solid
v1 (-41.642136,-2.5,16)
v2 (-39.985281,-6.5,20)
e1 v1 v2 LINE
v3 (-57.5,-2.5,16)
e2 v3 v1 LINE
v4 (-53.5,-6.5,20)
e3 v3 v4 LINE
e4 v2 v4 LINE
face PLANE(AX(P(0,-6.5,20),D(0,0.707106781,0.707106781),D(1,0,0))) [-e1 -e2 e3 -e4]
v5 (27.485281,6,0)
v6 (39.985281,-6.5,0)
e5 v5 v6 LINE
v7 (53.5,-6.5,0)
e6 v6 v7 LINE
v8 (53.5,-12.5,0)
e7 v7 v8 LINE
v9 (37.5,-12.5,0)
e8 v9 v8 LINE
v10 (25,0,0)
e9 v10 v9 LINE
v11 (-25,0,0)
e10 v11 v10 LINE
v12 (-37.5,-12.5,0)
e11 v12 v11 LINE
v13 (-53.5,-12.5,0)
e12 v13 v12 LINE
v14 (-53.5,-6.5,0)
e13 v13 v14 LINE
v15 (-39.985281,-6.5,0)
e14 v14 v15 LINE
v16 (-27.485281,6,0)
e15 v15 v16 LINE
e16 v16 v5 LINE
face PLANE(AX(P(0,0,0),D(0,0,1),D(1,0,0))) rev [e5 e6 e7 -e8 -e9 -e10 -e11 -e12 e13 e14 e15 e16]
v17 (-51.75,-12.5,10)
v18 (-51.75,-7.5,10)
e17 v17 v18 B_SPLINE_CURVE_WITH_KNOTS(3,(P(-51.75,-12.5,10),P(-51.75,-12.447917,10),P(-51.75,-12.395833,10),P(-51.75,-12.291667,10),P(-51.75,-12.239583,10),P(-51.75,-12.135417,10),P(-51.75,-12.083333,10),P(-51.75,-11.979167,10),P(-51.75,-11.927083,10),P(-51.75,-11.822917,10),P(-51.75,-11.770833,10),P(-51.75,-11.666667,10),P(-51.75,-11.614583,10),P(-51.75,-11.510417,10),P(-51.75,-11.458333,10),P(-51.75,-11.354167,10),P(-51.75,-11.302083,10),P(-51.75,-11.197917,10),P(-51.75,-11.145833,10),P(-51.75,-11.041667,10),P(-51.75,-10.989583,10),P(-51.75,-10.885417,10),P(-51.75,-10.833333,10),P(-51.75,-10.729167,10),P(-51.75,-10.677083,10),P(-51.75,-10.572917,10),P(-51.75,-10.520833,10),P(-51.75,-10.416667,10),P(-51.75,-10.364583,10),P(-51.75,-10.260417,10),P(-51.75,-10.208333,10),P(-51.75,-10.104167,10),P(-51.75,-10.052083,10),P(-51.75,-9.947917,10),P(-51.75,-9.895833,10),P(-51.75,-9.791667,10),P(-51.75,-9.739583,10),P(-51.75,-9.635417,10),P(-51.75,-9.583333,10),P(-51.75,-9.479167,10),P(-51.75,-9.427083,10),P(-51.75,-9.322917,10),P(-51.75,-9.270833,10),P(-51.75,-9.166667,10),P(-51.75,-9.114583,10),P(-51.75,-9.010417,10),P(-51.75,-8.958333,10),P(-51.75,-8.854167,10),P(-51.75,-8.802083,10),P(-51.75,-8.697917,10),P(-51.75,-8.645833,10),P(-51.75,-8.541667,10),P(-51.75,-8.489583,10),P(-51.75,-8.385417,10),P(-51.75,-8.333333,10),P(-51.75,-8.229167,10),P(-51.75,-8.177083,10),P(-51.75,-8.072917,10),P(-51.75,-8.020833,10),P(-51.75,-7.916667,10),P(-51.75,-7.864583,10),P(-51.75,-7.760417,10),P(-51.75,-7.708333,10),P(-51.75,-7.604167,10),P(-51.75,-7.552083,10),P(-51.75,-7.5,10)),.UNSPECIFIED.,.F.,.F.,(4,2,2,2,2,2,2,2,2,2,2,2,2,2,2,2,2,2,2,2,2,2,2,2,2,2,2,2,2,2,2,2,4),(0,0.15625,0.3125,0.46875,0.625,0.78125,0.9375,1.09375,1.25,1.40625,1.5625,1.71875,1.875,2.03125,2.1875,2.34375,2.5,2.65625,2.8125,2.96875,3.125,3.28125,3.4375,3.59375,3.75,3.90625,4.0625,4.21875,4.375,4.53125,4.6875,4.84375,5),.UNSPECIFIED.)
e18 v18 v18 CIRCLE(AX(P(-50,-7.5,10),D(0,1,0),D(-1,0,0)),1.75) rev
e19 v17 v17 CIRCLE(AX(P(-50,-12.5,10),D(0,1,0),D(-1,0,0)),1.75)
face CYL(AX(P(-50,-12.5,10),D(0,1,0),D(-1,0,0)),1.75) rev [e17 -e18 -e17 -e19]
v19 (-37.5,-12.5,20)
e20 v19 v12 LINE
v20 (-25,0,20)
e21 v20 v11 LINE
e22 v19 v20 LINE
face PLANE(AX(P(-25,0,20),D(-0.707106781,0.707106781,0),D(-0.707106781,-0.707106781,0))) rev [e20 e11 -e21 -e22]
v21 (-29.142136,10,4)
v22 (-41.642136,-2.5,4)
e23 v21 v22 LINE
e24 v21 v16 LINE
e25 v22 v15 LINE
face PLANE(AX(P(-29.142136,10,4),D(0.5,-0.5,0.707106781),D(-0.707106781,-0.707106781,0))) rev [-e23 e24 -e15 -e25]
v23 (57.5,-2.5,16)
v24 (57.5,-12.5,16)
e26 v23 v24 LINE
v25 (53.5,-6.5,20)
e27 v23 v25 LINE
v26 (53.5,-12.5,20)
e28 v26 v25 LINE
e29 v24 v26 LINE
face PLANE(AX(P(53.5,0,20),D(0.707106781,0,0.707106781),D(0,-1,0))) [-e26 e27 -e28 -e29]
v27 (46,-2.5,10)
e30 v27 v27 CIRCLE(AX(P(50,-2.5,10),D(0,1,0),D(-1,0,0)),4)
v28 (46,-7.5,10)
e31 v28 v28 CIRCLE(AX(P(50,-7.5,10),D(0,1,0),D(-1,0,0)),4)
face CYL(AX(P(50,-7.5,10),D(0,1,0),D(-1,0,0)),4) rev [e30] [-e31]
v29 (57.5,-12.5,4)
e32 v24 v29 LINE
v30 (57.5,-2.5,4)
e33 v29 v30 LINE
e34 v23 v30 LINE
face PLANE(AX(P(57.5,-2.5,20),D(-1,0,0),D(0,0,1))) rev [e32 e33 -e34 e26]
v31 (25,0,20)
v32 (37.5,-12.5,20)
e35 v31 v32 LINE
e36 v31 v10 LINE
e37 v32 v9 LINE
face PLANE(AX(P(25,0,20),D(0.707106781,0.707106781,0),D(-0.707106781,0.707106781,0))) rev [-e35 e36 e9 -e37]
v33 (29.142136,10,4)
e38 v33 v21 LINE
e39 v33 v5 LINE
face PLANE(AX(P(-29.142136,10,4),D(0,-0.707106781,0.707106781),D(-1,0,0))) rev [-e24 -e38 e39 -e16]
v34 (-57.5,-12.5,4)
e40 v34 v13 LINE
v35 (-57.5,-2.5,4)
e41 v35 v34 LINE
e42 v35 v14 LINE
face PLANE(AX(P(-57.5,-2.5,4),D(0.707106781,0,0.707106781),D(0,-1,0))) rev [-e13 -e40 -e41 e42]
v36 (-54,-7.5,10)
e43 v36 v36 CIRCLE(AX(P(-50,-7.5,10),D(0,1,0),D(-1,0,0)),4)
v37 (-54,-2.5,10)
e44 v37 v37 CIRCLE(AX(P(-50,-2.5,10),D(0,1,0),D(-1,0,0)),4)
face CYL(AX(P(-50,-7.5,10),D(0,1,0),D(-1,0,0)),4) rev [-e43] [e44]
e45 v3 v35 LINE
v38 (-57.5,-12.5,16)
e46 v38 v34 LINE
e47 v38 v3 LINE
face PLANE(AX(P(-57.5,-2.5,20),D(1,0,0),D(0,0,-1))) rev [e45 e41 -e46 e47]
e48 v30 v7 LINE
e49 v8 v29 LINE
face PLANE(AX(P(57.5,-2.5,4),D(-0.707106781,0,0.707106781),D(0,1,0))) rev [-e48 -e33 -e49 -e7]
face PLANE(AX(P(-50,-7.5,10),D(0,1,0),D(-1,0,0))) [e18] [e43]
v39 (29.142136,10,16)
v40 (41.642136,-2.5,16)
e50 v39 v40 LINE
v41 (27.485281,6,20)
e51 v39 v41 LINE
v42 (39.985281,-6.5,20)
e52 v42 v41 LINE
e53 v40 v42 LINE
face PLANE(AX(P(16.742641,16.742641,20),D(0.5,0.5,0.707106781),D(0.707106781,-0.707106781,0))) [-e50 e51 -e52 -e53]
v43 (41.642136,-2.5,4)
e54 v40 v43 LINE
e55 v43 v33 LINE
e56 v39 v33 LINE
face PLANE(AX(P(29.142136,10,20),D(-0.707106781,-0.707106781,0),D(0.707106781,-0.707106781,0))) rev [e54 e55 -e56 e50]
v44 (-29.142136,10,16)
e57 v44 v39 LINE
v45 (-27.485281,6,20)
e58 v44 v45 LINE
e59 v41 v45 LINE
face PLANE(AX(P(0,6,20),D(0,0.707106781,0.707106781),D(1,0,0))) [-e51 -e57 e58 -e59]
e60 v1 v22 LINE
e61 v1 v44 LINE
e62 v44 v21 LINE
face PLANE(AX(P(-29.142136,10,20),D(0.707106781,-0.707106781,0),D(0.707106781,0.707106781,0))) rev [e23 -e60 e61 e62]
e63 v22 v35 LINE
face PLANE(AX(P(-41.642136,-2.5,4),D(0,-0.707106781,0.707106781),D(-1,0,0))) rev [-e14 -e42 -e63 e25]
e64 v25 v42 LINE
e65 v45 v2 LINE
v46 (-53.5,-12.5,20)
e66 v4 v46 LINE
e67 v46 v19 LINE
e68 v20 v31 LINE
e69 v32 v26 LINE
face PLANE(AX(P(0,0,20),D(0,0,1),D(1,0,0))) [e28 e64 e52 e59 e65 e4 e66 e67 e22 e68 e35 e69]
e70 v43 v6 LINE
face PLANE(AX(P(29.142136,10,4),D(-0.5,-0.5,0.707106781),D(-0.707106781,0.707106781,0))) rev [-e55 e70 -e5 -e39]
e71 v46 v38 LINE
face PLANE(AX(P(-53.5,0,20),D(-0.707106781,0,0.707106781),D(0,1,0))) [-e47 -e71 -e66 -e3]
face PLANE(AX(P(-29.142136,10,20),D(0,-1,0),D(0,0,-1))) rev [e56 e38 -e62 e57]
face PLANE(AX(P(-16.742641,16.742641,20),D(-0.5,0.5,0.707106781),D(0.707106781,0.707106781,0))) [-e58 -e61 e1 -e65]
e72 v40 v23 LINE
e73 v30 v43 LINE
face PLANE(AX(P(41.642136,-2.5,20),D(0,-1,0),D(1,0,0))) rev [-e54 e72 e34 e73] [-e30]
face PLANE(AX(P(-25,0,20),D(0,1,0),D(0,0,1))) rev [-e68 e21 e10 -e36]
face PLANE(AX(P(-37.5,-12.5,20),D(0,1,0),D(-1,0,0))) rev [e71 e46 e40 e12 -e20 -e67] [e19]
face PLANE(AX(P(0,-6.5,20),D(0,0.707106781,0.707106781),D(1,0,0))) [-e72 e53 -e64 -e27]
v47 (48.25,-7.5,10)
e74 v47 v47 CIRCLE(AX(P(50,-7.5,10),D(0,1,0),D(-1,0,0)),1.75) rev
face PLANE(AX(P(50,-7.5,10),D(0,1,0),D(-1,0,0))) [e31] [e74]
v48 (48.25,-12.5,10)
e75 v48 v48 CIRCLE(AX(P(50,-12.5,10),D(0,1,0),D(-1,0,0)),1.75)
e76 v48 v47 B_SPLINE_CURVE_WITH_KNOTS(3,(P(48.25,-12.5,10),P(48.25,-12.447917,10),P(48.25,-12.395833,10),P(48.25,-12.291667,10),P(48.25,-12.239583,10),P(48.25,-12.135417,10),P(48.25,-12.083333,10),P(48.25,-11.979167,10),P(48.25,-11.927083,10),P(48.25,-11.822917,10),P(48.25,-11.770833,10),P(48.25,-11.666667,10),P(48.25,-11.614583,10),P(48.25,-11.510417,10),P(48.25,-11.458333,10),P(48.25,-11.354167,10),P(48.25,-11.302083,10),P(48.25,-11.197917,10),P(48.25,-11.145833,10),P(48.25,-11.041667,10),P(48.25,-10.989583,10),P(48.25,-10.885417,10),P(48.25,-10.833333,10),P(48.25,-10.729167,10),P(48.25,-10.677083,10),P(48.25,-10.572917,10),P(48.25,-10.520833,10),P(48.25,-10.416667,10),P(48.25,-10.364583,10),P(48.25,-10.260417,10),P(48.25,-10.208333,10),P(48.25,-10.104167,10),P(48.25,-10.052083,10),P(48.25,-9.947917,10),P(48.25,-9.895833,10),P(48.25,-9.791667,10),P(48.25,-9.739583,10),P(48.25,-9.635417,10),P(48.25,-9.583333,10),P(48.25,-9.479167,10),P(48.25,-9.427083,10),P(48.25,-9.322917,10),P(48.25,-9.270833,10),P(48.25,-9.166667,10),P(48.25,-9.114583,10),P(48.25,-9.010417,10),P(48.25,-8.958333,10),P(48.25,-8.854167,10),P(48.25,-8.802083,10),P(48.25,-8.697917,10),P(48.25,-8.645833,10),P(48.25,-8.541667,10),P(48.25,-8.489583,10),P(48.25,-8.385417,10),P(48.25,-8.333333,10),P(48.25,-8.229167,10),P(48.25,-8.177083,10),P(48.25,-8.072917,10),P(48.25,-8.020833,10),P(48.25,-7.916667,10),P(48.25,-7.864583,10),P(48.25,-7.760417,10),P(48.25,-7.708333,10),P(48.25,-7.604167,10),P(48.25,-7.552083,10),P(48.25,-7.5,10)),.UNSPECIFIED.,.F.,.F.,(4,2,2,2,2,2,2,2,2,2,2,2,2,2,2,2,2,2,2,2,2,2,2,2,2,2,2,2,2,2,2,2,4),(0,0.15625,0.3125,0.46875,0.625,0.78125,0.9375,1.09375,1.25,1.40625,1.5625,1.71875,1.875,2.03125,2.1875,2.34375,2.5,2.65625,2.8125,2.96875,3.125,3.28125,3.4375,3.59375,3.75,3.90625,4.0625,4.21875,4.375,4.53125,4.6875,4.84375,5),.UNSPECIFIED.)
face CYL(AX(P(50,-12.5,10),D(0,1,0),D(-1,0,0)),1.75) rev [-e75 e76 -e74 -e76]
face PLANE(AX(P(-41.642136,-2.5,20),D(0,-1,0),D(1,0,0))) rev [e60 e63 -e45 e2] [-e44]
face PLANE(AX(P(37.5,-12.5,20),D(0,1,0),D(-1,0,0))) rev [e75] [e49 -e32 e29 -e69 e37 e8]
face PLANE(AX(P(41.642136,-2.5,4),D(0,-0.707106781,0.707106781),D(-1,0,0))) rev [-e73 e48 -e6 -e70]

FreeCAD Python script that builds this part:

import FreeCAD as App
import Part
import Sketcher

V = App.Vector
Q = App.Units.Quantity


def edges_at(feature, points):
    """Names of the edges that pass closest to the given points."""
    edges = feature.Shape.Edges
    near = lambda p: min(range(len(edges)), key=lambda i: edges[i].distToShape(Part.Vertex(*p))[0])
    return sorted({f"Edge{near(p) + 1}" for p in points})

doc = App.newDocument("Part")
body = doc.addObject("PartDesign::Body", "Body")

sketch1 = body.newObject("Sketcher::SketchObject", "Sketch")
sketch1.AttachmentSupport = (doc.getObject("XY_Plane"), [""])
sketch1.MapMode = "FlatFace"
sketch1.addGeometry([
    Part.LineSegment(V(-25, 0, 0), V(25, 0, 0)),
    Part.LineSegment(V(25, 0, 0), V(38, -12, 0)),
    Part.LineSegment(V(38, -12, 0), V(58, -12, 0)),
    Part.LineSegment(V(58, -12, 0), V(58, -2, 0)),
    Part.LineSegment(V(58, -2, 0), V(42, -2, 0)),
    Part.LineSegment(V(42, -2, 0), V(29, 10, 0)),
    Part.LineSegment(V(29, 10, 0), V(-29, 10, 0)),
    Part.LineSegment(V(-29, 10, 0), V(-42, -2, 0)),
    Part.LineSegment(V(-42, -2, 0), V(-58, -2, 0)),
    Part.LineSegment(V(-58, -2, 0), V(-58, -12, 0)),
    Part.LineSegment(V(-58, -12, 0), V(-38, -12, 0)),
    Part.LineSegment(V(-38, -12, 0), V(-25, 0, 0)),
], False)
sketch1.addConstraint([
    Sketcher.Constraint("Coincident", 0, 2, 1, 1),
    Sketcher.Constraint("Coincident", 1, 2, 2, 1),
    Sketcher.Constraint("Coincident", 2, 2, 3, 1),
    Sketcher.Constraint("Coincident", 3, 2, 4, 1),
    Sketcher.Constraint("Coincident", 4, 2, 5, 1),
    Sketcher.Constraint("Coincident", 5, 2, 6, 1),
    Sketcher.Constraint("Coincident", 6, 2, 7, 1),
    Sketcher.Constraint("Coincident", 7, 2, 8, 1),
    Sketcher.Constraint("Coincident", 8, 2, 9, 1),
    Sketcher.Constraint("Coincident", 9, 2, 10, 1),
    Sketcher.Constraint("Coincident", 10, 2, 11, 1),
    Sketcher.Constraint("Coincident", 11, 2, 0, 1),
    Sketcher.Constraint("Horizontal", 0),
    Sketcher.Constraint("Horizontal", 2),
    Sketcher.Constraint("Vertical", 3),
    Sketcher.Constraint("Horizontal", 4),
    Sketcher.Constraint("Horizontal", 6),
    Sketcher.Constraint("Horizontal", 8),
    Sketcher.Constraint("Vertical", 9),
    Sketcher.Constraint("Horizontal", 10),
    Sketcher.Constraint("Symmetric", 0, 2, 11, 2, -1, 1),
    Sketcher.Constraint("Symmetric", 4, 2, 7, 2, -2),
    Sketcher.Constraint("Symmetric", 2, 2, 9, 2, -2),
    Sketcher.Constraint("Parallel", 1, 5),
    Sketcher.Constraint("Perpendicular", 5, 7),
    Sketcher.Constraint("Parallel", 7, 11),
    Sketcher.Constraint("Equal", 2, 10),
    Sketcher.Constraint("Equal", 1, 5),
    Sketcher.Constraint("DistanceX", 0, 1, 0, 2, Q("50 mm")),
    Sketcher.Constraint("DistanceX", 2, 1, 2, 2, Q("20 mm")),
    Sketcher.Constraint("DistanceY", 3, 1, 3, 2, Q("10 mm")),
    Sketcher.Constraint("DistanceX", 8, 2, 1, 2, Q("95 mm")),
    Sketcher.Constraint("DistanceX", 6, 2, 6, 1, Q("58.284271 mm")),
])
pad1 = body.newObject("PartDesign::Pad", "Pad")
pad1.Profile = sketch1
pad1.Length = 20
doc.recompute()

chamfer = body.newObject("PartDesign::Chamfer", "Chamfer")
chamfer.Base = (pad1, edges_at(pad1, [
    (-57.5, -7.5, 0),
    (-49.571, -2.5, 0),
    (-35.392, 3.75, 0),
    (0, 10, 0),
    (35.392, 3.75, 0),
    (49.571, -2.5, 0),
    (57.5, -7.5, 0),
    (57.5, -7.5, 20),
    (49.571, -2.5, 20),
    (35.392, 3.75, 20),
    (0, 10, 20),
    (-35.392, 3.75, 20),
    (-49.571, -2.5, 20),
    (-57.5, -7.5, 20),
]))
chamfer.Size = 4

sketch2 = body.newObject("Sketcher::SketchObject", "Sketch001")
sketch2.AttachmentSupport = (doc.getObject("XZ_Plane"), [""])
sketch2.MapMode = "FlatFace"
sketch2.AttachmentOffset = App.Placement(V(0, 0, 2.5), App.Rotation())
sketch2.addGeometry([
    Part.Circle(V(-50, 10, 0), V(0, 0, 1), 1.8),
    Part.Circle(V(50, 10, 0), V(0, 0, 1), 1.8),
], False)
sketch2.addConstraint([
    Sketcher.Constraint("Equal", 0, 1),
    Sketcher.Constraint("Symmetric", 0, 3, 1, 3, -2),
    Sketcher.Constraint("Diameter", 0, Q("3.5 mm")),
    Sketcher.Constraint("DistanceX", 0, 3, -1, 1, Q("50 mm")),
    Sketcher.Constraint("DistanceY", -1, 1, 0, 3, Q("10 mm")),
])
pocket1 = body.newObject("PartDesign::Pocket", "Pocket")
pocket1.Profile = sketch2
pocket1.Type = "ThroughAll"
pocket1.Reversed = True

sketch3 = body.newObject("Sketcher::SketchObject", "Sketch002")
sketch3.AttachmentSupport = (doc.getObject("XZ_Plane"), [""])
sketch3.MapMode = "FlatFace"
sketch3.AttachmentOffset = App.Placement(V(0, 0, 2.5), App.Rotation())
sketch3.addGeometry([
    Part.Circle(V(-50, 10, 0), V(0, 0, 1), 4),
    Part.Circle(V(50, 10, 0), V(0, 0, 1), 4),
], False)
sketch3.addConstraint([
    Sketcher.Constraint("Equal", 0, 1),
    Sketcher.Constraint("Symmetric", 0, 3, 1, 3, -2),
    Sketcher.Constraint("Diameter", 0, Q("8 mm")),
    Sketcher.Constraint("DistanceX", 0, 3, -1, 1, Q("50 mm")),
    Sketcher.Constraint("DistanceY", -1, 1, 0, 3, Q("10 mm")),
])
pocket2 = body.newObject("PartDesign::Pocket", "Pocket001")
pocket2.Profile = sketch3
pocket2.Length = 5
pocket2.Reversed = True

doc.recompute()
